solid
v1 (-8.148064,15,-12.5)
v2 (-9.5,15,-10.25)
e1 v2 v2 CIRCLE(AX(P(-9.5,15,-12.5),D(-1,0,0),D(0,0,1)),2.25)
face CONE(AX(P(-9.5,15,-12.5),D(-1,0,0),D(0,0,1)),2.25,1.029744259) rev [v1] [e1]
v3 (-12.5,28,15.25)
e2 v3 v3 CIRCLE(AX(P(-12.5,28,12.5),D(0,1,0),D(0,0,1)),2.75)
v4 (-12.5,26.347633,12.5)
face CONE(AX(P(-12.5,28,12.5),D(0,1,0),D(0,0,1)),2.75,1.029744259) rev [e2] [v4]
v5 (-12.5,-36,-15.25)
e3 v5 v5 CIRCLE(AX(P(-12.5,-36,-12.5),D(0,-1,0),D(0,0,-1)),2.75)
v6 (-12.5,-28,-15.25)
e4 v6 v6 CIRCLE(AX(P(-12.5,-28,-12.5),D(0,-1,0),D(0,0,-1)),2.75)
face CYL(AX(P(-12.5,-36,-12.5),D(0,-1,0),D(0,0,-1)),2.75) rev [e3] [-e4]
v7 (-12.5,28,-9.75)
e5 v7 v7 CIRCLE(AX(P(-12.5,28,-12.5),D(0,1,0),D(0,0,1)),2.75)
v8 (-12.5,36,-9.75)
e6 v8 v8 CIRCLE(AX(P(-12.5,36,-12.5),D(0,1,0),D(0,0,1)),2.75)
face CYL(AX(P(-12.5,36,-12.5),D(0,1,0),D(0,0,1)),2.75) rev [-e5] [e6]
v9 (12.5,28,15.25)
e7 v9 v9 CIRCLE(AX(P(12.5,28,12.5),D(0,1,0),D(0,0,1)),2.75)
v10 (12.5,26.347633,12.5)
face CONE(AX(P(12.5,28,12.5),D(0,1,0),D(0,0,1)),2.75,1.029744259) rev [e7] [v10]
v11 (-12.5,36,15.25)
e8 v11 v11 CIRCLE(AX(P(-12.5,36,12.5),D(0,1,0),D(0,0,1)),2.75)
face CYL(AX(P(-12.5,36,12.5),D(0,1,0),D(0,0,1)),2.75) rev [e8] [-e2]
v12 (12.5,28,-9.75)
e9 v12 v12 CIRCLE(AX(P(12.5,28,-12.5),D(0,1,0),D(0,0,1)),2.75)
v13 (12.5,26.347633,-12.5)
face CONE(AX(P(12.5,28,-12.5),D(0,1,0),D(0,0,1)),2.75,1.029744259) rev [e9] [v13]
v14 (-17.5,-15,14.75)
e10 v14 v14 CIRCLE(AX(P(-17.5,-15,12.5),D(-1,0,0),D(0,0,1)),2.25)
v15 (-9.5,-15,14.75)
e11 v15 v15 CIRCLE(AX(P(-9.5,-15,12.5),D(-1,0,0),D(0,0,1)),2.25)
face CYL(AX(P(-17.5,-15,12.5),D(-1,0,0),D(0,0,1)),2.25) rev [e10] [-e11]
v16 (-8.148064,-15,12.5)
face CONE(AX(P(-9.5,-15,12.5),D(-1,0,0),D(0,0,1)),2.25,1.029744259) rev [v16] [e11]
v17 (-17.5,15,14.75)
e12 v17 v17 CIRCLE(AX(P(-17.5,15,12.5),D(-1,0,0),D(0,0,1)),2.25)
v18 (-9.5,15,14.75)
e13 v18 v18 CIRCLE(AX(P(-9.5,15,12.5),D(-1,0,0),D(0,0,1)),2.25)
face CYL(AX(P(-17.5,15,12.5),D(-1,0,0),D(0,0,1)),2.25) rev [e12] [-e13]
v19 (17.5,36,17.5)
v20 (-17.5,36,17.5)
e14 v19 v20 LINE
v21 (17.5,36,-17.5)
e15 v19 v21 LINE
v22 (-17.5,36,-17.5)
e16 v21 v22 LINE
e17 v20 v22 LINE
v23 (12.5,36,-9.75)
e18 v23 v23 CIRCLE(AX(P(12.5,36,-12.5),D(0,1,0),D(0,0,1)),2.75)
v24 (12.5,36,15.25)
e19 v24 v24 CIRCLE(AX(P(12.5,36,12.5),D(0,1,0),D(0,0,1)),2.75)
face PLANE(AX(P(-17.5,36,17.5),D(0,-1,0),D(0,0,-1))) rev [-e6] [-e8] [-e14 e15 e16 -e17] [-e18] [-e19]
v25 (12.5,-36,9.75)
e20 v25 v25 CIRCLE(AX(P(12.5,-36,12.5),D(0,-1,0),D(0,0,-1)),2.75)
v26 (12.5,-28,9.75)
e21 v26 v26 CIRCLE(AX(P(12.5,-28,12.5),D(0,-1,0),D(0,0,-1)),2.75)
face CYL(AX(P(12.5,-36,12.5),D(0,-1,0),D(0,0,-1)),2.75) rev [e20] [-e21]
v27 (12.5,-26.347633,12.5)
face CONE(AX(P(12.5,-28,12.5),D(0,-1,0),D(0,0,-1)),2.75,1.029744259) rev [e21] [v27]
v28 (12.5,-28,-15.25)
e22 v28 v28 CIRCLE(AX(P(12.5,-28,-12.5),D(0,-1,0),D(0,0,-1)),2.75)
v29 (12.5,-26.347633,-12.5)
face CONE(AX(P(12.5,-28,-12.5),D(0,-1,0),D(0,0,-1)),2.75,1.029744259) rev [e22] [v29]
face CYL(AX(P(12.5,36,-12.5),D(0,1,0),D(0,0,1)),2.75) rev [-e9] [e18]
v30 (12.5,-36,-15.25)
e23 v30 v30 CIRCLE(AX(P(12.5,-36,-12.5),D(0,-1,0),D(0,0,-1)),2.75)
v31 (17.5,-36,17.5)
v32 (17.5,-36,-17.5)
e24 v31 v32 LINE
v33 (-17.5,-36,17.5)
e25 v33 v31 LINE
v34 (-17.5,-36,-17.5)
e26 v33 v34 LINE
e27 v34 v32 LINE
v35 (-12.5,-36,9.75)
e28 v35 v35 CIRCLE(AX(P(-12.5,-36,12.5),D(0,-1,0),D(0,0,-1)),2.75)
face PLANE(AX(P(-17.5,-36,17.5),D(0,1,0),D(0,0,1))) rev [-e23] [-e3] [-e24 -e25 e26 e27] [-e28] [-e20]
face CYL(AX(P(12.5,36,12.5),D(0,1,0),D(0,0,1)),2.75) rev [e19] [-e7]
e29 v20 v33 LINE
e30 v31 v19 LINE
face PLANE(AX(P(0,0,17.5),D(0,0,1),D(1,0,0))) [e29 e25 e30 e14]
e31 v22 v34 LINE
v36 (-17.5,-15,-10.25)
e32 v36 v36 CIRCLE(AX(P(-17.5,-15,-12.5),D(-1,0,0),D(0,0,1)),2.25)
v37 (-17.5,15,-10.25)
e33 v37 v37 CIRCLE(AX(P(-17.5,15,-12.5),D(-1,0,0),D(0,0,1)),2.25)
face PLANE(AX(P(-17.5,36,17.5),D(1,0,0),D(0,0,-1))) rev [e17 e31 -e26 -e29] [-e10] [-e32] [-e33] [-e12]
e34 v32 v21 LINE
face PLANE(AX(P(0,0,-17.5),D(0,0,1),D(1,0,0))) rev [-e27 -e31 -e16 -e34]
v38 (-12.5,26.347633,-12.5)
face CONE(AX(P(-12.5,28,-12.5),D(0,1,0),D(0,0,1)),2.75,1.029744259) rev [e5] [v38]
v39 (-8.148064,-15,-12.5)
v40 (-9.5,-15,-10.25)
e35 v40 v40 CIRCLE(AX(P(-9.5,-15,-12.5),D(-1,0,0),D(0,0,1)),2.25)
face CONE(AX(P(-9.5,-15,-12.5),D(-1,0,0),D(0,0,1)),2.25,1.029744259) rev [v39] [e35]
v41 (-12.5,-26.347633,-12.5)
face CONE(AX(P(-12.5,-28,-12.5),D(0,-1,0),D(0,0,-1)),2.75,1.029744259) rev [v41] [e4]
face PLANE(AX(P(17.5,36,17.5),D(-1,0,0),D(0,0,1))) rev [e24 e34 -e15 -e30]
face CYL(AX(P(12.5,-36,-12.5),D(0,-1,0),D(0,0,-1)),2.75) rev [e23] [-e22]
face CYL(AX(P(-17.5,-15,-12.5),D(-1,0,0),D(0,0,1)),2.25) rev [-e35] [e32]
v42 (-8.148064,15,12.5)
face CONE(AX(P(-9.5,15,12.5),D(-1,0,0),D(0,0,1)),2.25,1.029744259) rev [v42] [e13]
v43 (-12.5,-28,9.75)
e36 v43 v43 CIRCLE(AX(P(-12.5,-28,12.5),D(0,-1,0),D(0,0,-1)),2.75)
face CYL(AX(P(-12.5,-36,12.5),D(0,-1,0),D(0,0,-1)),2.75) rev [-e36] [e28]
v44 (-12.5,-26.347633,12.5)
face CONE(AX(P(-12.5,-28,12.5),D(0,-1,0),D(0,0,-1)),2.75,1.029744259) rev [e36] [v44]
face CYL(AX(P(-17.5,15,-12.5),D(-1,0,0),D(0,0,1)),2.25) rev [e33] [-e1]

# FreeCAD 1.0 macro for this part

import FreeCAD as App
import Part
import Sketcher

V = App.Vector
Q = App.Units.Quantity


def add_polygon(sketch, points):
    """Adds a closed chain of lines whose ends are joined by coincident constraints."""
    first, n = sketch.GeometryCount, len(points)
    for a, b in zip(points, points[1:] + points[:1]):
        sketch.addGeometry(Part.LineSegment(App.Vector(*a, 0), App.Vector(*b, 0)), False)
    for i in range(n):
        sketch.addConstraint(Sketcher.Constraint("Coincident", first + i, 2, first + (i + 1) % n, 1))

doc = App.newDocument("Part")
body = doc.addObject("PartDesign::Body", "Body")

sketch1 = doc.addObject("Sketcher::SketchObject", "Sketch")
body.addObject(sketch1)
sketch1.AttachmentSupport = (doc.XY_Plane, [""])
sketch1.MapMode = "FlatFace"
add_polygon(sketch1, [(-18, 36), (-18, -36), (18, -36), (18, 36)])
sketch1.addConstraint([
    Sketcher.Constraint("Vertical", 0),
    Sketcher.Constraint("Horizontal", 1),
    Sketcher.Constraint("Vertical", 2),
    Sketcher.Constraint("Horizontal", 3),
    Sketcher.Constraint("Symmetric", 0, 2, 2, 2, -1, 1),
    Sketcher.Constraint("DistanceX", 1, 1, 1, 2, Q("35 mm")),
    Sketcher.Constraint("DistanceY", 0, 2, 0, 1, Q("72 mm")),
])
pad1 = doc.addObject("PartDesign::Pad", "Pad")
body.addObject(pad1)
pad1.Profile = sketch1
pad1.Length = 35
pad1.Midplane = True

sketch2 = doc.addObject("Sketcher::SketchObject", "Sketch001")
body.addObject(sketch2)
sketch2.AttachmentSupport = (doc.YZ_Plane, [""])
sketch2.MapMode = "FlatFace"
sketch2.AttachmentOffset = App.Placement(V(0, 0, -12.5), App.Rotation())
add_polygon(sketch2, [(26.3, -12.5), (36, -12.5), (36, -9.8), (28, -9.8)])
sketch2.addGeometry(Part.LineSegment(V(36, -12.5, 0), V(26.3, -12.5, 0)), True)
sketch2.addConstraint([
    Sketcher.Constraint("Horizontal", 0),
    Sketcher.Constraint("Vertical", 1),
    Sketcher.Constraint("Horizontal", 2),
    Sketcher.Constraint("Horizontal", 4),
    Sketcher.Constraint("Coincident", 4, 1, 0, 2),
    Sketcher.Constraint("Equal", 0, 4),
    Sketcher.Constraint("DistanceX", 2, 2, 2, 1, Q("8 mm")),
    Sketcher.Constraint("Angle", 3, Q("-121 deg")),
    Sketcher.Constraint("DistanceX", -1, 1, 0, 2, Q("36 mm")),
    Sketcher.Constraint("DistanceY", 1, 1, 1, 2, Q("2.75 mm")),
    Sketcher.Constraint("DistanceY", 0, 2, -1, 1, Q("12.5 mm")),
])
groove = doc.addObject("PartDesign::Groove", "Groove")
body.addObject(groove)
groove.Profile = sketch2
groove.ReferenceAxis = (sketch2, ["Axis0"])
groove.Angle = 360
doc.recompute()

mirrored = doc.addObject("PartDesign::Mirrored", "Mirrored")
body.addObject(mirrored)
mirrored.Originals = [groove]
mirrored.MirrorPlane = (doc.YZ_Plane, [""])
body.Tip = mirrored
doc.recompute()

mirrored2 = doc.addObject("PartDesign::Mirrored", "Mirrored001")
body.addObject(mirrored2)
mirrored2.Originals = [groove]
mirrored2.MirrorPlane = (doc.XY_Plane, [""])
body.Tip = mirrored2

sketch3 = doc.addObject("Sketcher::SketchObject", "Sketch002")
body.addObject(sketch3)
sketch3.AttachmentSupport = (doc.YZ_Plane, [""])
sketch3.MapMode = "FlatFace"
sketch3.AttachmentOffset = App.Placement(V(0, 0, 12.5), App.Rotation())
add_polygon(sketch3, [(26.3, 12.5), (36, 12.5), (36, 9.8), (28, 9.8)])
sketch3.addGeometry(Part.LineSegment(V(36, 12.5, 0), V(26.3, 12.5, 0)), True)
sketch3.addConstraint([
    Sketcher.Constraint("Horizontal", 0),
    Sketcher.Constraint("Vertical", 1),
    Sketcher.Constraint("Horizontal", 2),
    Sketcher.Constraint("Horizontal", 4),
    Sketcher.Constraint("Coincident", 4, 1, 0, 2),
    Sketcher.Constraint("Equal", 0, 4),
    Sketcher.Constraint("DistanceX", 2, 2, 2, 1, Q("8 mm")),
    Sketcher.Constraint("Angle", 3, Q("121 deg")),
    Sketcher.Constraint("DistanceX", -1, 1, 0, 2, Q("36 mm")),
    Sketcher.Constraint("DistanceY", 1, 2, 1, 1, Q("2.75 mm")),
    Sketcher.Constraint("DistanceY", -1, 1, 0, 2, Q("12.5 mm")),
])
groove2 = doc.addObject("PartDesign::Groove", "Groove001")
body.addObject(groove2)
groove2.Profile = sketch3
groove2.ReferenceAxis = (sketch3, ["Axis0"])
groove2.Angle = 360
doc.recompute()

mirrored3 = doc.addObject("PartDesign::Mirrored", "Mirrored002")
body.addObject(mirrored3)
mirrored3.Originals = [groove]
mirrored3.MirrorPlane = (doc.XZ_Plane, [""])
body.Tip = mirrored3

sketch4 = doc.addObject("Sketcher::SketchObject", "Sketch003")
body.addObject(sketch4)
sketch4.AttachmentSupport = (doc.YZ_Plane, [""])
sketch4.MapMode = "FlatFace"
sketch4.AttachmentOffset = App.Placement(V(0, 0, 12.5), App.Rotation())
add_polygon(sketch4, [(-26.3, -12.5), (-36, -12.5), (-36, -9.8), (-28, -9.8)])
sketch4.addGeometry(Part.LineSegment(V(-36, -12.5, 0), V(-26.3, -12.5, 0)), True)
sketch4.addConstraint([
    Sketcher.Constraint("Horizontal", 0),
    Sketcher.Constraint("Vertical", 1),
    Sketcher.Constraint("Horizontal", 2),
    Sketcher.Constraint("Horizontal", 4),
    Sketcher.Constraint("Coincident", 4, 1, 0, 2),
    Sketcher.Constraint("Equal", 0, 4),
    Sketcher.Constraint("DistanceX", 2, 1, 2, 2, Q("8 mm")),
    Sketcher.Constraint("Angle", 3, Q("-59 deg")),
    Sketcher.Constraint("DistanceX", 0, 2, -1, 1, Q("36 mm")),
    Sketcher.Constraint("DistanceY", 1, 1, 1, 2, Q("2.75 mm")),
    Sketcher.Constraint("DistanceY", 0, 2, -1, 1, Q("12.5 mm")),
])
groove3 = doc.addObject("PartDesign::Groove", "Groove002")
body.addObject(groove3)
groove3.Profile = sketch4
groove3.ReferenceAxis = (sketch4, ["Axis0"])
groove3.Angle = 360

sketch5 = doc.addObject("Sketcher::SketchObject", "Sketch004")
body.addObject(sketch5)
sketch5.AttachmentSupport = (doc.YZ_Plane, [""])
sketch5.MapMode = "FlatFace"
sketch5.AttachmentOffset = App.Placement(V(0, 0, -12.5), App.Rotation())
add_polygon(sketch5, [(-26.3, 12.5), (-36, 12.5), (-36, 9.8), (-28, 9.8)])
sketch5.addGeometry(Part.LineSegment(V(-36, 12.5, 0), V(-26.3, 12.5, 0)), True)
sketch5.addConstraint([
    Sketcher.Constraint("Horizontal", 0),
    Sketcher.Constraint("Vertical", 1),
    Sketcher.Constraint("Horizontal", 2),
    Sketcher.Constraint("Horizontal", 4),
    Sketcher.Constraint("Coincident", 4, 1, 0, 2),
    Sketcher.Constraint("Equal", 0, 4),
    Sketcher.Constraint("DistanceX", 2, 1, 2, 2, Q("8 mm")),
    Sketcher.Constraint("Angle", 3, Q("59 deg")),
    Sketcher.Constraint("DistanceX", 0, 2, -1, 1, Q("36 mm")),
    Sketcher.Constraint("DistanceY", 1, 2, 1, 1, Q("2.75 mm")),
    Sketcher.Constraint("DistanceY", -1, 1, 0, 2, Q("12.5 mm")),
])
groove4 = doc.addObject("PartDesign::Groove", "Groove003")
body.addObject(groove4)
groove4.Profile = sketch5
groove4.ReferenceAxis = (sketch5, ["Axis0"])
groove4.Angle = 360

sketch6 = doc.addObject("Sketcher::SketchObject", "Sketch005")
body.addObject(sketch6)
sketch6.AttachmentSupport = (doc.YZ_Plane, [""])
sketch6.MapMode = "FlatFace"
sketch6.AttachmentOffset = App.Placement(V(0, 0, 12.5), App.Rotation())
add_polygon(sketch6, [(-36, 12.5), (-26.3, 12.5), (-28, 9.8), (-36, 9.8)])
sketch6.addGeometry(Part.LineSegment(V(-26.3, 12.5, 0), V(-36, 12.5, 0)), True)
sketch6.addConstraint([
    Sketcher.Constraint("Horizontal", 0),
    Sketcher.Constraint("Horizontal", 2),
    Sketcher.Constraint("Vertical", 3),
    Sketcher.Constraint("Horizontal", 4),
    Sketcher.Constraint("Coincident", 4, 1, 0, 2),
    Sketcher.Constraint("Vertical", 2, 2, 4, 2),
    Sketcher.Constraint("DistanceX", 2, 2, 2, 1, Q("8 mm")),
    Sketcher.Constraint("Angle", 1, Q("-121 deg")),
    Sketcher.Constraint("DistanceX", 1, 2, -1, 1, Q("28 mm")),
    Sketcher.Constraint("DistanceY", 3, 1, 3, 2, Q("2.75 mm")),
    Sketcher.Constraint("DistanceY", -1, 1, 0, 2, Q("12.5 mm")),
])
groove5 = doc.addObject("PartDesign::Groove", "Groove004")
body.addObject(groove5)
groove5.Profile = sketch6
groove5.ReferenceAxis = (sketch6, ["Axis0"])
groove5.Angle = 360

sketch7 = doc.addObject("Sketcher::SketchObject", "Sketch006")
body.addObject(sketch7)
sketch7.AttachmentSupport = (doc.XZ_Plane, [""])
sketch7.MapMode = "FlatFace"
sketch7.AttachmentOffset = App.Placement(V(0, 0, -15), App.Rotation())
add_polygon(sketch7, [(-8.1, -12.5), (-17.5, -12.5), (-17.5, -10.2), (-9.5, -10.2)])
sketch7.addGeometry(Part.LineSegment(V(-17.5, -12.5, 0), V(-8.1, -12.5, 0)), True)
sketch7.addConstraint([
    Sketcher.Constraint("Horizontal", 0),
    Sketcher.Constraint("Vertical", 1),
    Sketcher.Constraint("Horizontal", 2),
    Sketcher.Constraint("Horizontal", 4),
    Sketcher.Constraint("Coincident", 4, 1, 0, 2),
    Sketcher.Constraint("Equal", 0, 4),
    Sketcher.Constraint("DistanceX", 2, 1, 2, 2, Q("8 mm")),
    Sketcher.Constraint("Angle", 3, Q("-59 deg")),
    Sketcher.Constraint("DistanceY", 1, 1, 1, 2, Q("2.25 mm")),
    Sketcher.Constraint("DistanceX", 0, 2, -1, 1, Q("17.5 mm")),
    Sketcher.Constraint("DistanceY", 0, 2, -1, 1, Q("12.5 mm")),
])
groove6 = doc.addObject("PartDesign::Groove", "Groove005")
body.addObject(groove6)
groove6.Profile = sketch7
groove6.ReferenceAxis = (sketch7, ["Axis0"])
groove6.Angle = 360
doc.recompute()

mirrored4 = doc.addObject("PartDesign::Mirrored", "Mirrored003")
body.addObject(mirrored4)
mirrored4.Originals = [groove6]
mirrored4.MirrorPlane = (doc.XY_Plane, [""])
body.Tip = mirrored4
doc.recompute()

mirrored5 = doc.addObject("PartDesign::Mirrored", "Mirrored004")
body.addObject(mirrored5)
mirrored5.Originals = [groove6]
mirrored5.MirrorPlane = (doc.XZ_Plane, [""])
body.Tip = mirrored5

sketch8 = doc.addObject("Sketcher::SketchObject", "Sketch007")
body.addObject(sketch8)
sketch8.AttachmentSupport = (doc.XZ_Plane, [""])
sketch8.MapMode = "FlatFace"
sketch8.AttachmentOffset = App.Placement(V(0, 0, 15), App.Rotation())
add_polygon(sketch8, [(-8.1, 12.5), (-17.5, 12.5), (-17.5, 10.2), (-9.5, 10.2)])
sketch8.addGeometry(Part.LineSegment(V(-17.5, 12.5, 0), V(-8.1, 12.5, 0)), True)
sketch8.addConstraint([
    Sketcher.Constraint("Horizontal", 0),
    Sketcher.Constraint("Vertical", 1),
    Sketcher.Constraint("Horizontal", 2),
    Sketcher.Constraint("Horizontal", 4),
    Sketcher.Constraint("Coincident", 4, 1, 0, 2),
    Sketcher.Constraint("Equal", 0, 4),
    Sketcher.Constraint("DistanceX", 2, 1, 2, 2, Q("8 mm")),
    Sketcher.Constraint("Angle", 3, Q("59 deg")),
    Sketcher.Constraint("DistanceY", 1, 2, 1, 1, Q("2.25 mm")),
    Sketcher.Constraint("DistanceX", 0, 2, -1, 1, Q("17.5 mm")),
    Sketcher.Constraint("DistanceY", -1, 1, 0, 2, Q("12.5 mm")),
])
groove7 = doc.addObject("PartDesign::Groove", "Groove006")
body.addObject(groove7)
groove7.Profile = sketch8
groove7.ReferenceAxis = (sketch8, ["Axis0"])
groove7.Angle = 360

doc.recompute()
